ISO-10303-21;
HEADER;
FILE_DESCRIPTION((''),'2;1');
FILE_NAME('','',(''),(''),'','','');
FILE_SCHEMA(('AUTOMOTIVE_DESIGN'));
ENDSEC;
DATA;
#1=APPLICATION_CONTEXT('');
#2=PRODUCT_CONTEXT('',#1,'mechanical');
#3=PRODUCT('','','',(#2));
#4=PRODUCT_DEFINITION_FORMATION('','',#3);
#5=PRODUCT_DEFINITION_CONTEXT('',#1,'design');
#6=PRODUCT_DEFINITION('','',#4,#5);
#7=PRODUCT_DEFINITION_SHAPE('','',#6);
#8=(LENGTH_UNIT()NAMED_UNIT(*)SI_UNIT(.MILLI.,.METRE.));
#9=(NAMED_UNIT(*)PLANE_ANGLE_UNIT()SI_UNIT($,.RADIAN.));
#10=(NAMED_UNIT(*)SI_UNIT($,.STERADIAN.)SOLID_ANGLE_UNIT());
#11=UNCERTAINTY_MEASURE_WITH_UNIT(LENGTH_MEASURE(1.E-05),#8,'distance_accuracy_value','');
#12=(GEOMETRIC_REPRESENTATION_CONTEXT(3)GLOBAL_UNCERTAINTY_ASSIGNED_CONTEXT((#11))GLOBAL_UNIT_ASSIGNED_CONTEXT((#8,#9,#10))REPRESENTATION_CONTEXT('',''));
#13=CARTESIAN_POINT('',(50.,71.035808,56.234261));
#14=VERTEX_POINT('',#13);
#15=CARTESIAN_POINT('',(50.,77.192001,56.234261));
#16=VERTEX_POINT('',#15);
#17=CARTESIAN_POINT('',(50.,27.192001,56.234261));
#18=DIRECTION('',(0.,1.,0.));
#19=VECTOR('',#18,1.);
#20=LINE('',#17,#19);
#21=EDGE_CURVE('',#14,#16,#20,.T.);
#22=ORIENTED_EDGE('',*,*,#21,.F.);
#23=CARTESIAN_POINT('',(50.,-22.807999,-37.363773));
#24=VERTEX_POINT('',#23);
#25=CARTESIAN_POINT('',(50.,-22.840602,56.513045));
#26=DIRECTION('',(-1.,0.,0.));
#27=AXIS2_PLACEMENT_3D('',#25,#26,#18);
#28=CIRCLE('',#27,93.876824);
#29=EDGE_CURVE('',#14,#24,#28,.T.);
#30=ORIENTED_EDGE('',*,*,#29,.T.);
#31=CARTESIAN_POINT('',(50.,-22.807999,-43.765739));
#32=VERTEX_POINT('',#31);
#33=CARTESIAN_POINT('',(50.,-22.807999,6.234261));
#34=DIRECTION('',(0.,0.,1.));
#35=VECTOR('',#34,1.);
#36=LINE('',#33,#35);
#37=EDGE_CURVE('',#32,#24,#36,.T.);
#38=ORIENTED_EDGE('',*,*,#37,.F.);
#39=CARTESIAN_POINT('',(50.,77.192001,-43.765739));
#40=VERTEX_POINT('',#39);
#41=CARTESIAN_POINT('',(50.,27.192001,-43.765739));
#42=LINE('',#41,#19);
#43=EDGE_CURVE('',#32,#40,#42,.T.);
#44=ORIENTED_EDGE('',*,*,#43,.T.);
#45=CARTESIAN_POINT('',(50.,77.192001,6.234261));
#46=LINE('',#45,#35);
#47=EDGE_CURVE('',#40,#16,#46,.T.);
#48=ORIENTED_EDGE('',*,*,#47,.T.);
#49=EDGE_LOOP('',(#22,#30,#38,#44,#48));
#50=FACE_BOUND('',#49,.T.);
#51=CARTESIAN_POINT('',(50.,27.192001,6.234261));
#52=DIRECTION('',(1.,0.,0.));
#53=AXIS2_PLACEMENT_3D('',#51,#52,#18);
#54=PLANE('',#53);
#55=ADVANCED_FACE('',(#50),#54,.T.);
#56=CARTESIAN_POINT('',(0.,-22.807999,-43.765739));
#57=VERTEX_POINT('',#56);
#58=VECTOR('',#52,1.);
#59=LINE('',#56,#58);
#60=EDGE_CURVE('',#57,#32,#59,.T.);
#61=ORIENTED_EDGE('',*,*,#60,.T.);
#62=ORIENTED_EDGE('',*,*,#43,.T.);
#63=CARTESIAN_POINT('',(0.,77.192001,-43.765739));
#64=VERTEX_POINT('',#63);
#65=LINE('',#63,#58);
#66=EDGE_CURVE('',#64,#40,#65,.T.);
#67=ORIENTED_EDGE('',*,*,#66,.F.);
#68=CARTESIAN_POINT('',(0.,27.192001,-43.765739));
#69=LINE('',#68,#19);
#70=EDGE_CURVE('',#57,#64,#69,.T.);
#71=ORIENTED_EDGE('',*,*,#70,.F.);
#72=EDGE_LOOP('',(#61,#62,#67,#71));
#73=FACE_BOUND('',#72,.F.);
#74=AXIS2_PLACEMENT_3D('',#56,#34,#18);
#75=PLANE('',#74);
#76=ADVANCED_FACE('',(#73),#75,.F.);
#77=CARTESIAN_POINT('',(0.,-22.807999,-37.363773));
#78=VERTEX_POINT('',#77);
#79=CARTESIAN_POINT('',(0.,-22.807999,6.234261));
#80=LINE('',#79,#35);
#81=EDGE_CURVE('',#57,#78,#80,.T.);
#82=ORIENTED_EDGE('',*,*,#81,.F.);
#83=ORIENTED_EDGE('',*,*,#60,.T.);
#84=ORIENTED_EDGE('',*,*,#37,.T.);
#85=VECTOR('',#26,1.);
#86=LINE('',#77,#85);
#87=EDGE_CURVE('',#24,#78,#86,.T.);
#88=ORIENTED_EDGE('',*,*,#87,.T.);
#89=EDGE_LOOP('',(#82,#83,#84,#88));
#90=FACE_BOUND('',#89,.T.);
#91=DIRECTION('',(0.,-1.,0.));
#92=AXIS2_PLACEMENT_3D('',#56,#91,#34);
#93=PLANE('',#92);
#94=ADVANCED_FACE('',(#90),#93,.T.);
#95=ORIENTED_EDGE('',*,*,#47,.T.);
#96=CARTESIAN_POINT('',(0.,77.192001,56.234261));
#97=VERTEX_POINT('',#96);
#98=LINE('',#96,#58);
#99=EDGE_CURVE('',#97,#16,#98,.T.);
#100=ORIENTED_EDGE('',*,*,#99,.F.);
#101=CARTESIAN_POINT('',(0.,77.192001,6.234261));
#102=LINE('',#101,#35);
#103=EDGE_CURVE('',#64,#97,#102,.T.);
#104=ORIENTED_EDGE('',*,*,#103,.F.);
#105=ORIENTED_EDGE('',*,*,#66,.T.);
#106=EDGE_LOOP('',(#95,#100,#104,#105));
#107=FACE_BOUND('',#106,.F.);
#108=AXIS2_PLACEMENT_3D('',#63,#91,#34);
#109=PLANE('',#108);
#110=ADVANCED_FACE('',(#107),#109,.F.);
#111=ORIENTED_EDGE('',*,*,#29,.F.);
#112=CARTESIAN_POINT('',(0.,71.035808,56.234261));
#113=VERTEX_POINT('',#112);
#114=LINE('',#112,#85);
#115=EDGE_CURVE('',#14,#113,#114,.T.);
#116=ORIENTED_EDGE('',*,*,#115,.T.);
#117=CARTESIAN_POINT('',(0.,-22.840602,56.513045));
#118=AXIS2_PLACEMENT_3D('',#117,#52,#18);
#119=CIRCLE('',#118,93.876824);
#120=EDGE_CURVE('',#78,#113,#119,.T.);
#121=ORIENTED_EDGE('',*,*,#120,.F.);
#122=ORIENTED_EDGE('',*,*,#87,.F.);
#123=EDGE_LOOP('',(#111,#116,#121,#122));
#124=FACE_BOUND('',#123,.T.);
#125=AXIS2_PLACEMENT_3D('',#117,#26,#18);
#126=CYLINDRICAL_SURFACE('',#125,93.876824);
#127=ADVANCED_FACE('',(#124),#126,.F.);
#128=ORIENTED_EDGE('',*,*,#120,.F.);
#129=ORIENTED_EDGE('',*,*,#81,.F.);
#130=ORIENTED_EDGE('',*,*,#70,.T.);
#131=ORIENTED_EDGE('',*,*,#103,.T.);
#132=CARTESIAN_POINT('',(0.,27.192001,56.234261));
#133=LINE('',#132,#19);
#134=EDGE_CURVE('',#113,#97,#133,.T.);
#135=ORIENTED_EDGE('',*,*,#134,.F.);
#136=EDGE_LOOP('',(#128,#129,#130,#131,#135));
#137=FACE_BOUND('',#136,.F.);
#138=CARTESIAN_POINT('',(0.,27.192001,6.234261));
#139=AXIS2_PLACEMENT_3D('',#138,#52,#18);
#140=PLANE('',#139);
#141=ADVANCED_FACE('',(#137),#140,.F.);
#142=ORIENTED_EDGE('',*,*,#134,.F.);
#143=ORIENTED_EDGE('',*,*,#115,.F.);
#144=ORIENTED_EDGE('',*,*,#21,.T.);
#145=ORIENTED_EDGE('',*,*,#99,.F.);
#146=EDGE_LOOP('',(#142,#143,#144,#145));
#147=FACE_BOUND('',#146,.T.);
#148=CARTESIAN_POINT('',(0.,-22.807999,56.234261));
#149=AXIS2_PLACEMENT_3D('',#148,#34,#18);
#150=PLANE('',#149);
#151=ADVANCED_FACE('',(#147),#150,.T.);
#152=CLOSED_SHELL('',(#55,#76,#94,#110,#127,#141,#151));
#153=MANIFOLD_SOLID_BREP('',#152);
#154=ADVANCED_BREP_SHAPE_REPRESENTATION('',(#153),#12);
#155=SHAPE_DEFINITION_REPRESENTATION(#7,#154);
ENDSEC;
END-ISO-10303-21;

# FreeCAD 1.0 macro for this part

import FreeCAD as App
import Part
import Sketcher

V = App.Vector

doc = App.newDocument("Part")
body = doc.addObject("PartDesign::Body", "Body")

sketch1 = body.newObject("Sketcher::SketchObject", "Sketch")
sketch1.AttachmentSupport = (doc.getObject("YZ_Plane"), [""])
sketch1.MapMode = "FlatFace"
sketch1.addGeometry(Part.LineSegment(V(-23, 56, 0), V(-23, -44, 0)), False)
sketch1.addGeometry(Part.LineSegment(V(-23, -44, 0), V(77, -44, 0)), False)
sketch1.addGeometry(Part.LineSegment(V(77, -44, 0), V(77, 56, 0)), False)
sketch1.addGeometry(Part.LineSegment(V(77, 56, 0), V(-23, 56, 0)), False)
sketch1.addConstraint(Sketcher.Constraint("Coincident", 0, 2, 1, 1))
sketch1.addConstraint(Sketcher.Constraint("Coincident", 1, 2, 2, 1))
sketch1.addConstraint(Sketcher.Constraint("Coincident", 2, 2, 3, 1))
sketch1.addConstraint(Sketcher.Constraint("Coincident", 3, 2, 0, 1))
sketch1.addConstraint(Sketcher.Constraint("Vertical", 0))
sketch1.addConstraint(Sketcher.Constraint("Horizontal", 1))
sketch1.addConstraint(Sketcher.Constraint("Vertical", 2))
sketch1.addConstraint(Sketcher.Constraint("Horizontal", 3))
sketch1.addConstraint(Sketcher.Constraint("Equal", 3, 0))
sketch1.addConstraint(Sketcher.Constraint("DistanceX", 1, 1, 1, 2, 100.0))
sketch1.addConstraint(Sketcher.Constraint("DistanceX", 0, 2, -1, 1, 22.807999))
sketch1.addConstraint(Sketcher.Constraint("DistanceY", 0, 2, -1, 1, 43.765739))
pad1 = body.newObject("PartDesign::Pad", "Pad")
pad1.Profile = sketch1
pad1.Length = 50
body2 = doc.addObject("PartDesign::Body", "Body001")

sketch2 = body2.newObject("Sketcher::SketchObject", "Sketch001")
sketch2.AttachmentSupport = (doc.getObject("YZ_Plane001"), [""])
sketch2.MapMode = "FlatFace"
sketch2.addGeometry(Part.Circle(V(-23, 57, 0), V(0, 0, 1), 94), False)
sketch2.addConstraint(Sketcher.Constraint("Diameter", 0, 187.753648))
sketch2.addConstraint(Sketcher.Constraint("DistanceX", 0, 3, -1, 1, 22.840602))
sketch2.addConstraint(Sketcher.Constraint("DistanceY", -1, 1, 0, 3, 56.513045))
pad2 = body2.newObject("PartDesign::Pad", "Pad001")
pad2.Profile = sketch2
pad2.Length = 75
doc.recompute()

boolean = body.newObject("PartDesign::Boolean", "Boolean")
boolean.Type = "Cut"
boolean.addObjects([body2])

doc.recompute()
